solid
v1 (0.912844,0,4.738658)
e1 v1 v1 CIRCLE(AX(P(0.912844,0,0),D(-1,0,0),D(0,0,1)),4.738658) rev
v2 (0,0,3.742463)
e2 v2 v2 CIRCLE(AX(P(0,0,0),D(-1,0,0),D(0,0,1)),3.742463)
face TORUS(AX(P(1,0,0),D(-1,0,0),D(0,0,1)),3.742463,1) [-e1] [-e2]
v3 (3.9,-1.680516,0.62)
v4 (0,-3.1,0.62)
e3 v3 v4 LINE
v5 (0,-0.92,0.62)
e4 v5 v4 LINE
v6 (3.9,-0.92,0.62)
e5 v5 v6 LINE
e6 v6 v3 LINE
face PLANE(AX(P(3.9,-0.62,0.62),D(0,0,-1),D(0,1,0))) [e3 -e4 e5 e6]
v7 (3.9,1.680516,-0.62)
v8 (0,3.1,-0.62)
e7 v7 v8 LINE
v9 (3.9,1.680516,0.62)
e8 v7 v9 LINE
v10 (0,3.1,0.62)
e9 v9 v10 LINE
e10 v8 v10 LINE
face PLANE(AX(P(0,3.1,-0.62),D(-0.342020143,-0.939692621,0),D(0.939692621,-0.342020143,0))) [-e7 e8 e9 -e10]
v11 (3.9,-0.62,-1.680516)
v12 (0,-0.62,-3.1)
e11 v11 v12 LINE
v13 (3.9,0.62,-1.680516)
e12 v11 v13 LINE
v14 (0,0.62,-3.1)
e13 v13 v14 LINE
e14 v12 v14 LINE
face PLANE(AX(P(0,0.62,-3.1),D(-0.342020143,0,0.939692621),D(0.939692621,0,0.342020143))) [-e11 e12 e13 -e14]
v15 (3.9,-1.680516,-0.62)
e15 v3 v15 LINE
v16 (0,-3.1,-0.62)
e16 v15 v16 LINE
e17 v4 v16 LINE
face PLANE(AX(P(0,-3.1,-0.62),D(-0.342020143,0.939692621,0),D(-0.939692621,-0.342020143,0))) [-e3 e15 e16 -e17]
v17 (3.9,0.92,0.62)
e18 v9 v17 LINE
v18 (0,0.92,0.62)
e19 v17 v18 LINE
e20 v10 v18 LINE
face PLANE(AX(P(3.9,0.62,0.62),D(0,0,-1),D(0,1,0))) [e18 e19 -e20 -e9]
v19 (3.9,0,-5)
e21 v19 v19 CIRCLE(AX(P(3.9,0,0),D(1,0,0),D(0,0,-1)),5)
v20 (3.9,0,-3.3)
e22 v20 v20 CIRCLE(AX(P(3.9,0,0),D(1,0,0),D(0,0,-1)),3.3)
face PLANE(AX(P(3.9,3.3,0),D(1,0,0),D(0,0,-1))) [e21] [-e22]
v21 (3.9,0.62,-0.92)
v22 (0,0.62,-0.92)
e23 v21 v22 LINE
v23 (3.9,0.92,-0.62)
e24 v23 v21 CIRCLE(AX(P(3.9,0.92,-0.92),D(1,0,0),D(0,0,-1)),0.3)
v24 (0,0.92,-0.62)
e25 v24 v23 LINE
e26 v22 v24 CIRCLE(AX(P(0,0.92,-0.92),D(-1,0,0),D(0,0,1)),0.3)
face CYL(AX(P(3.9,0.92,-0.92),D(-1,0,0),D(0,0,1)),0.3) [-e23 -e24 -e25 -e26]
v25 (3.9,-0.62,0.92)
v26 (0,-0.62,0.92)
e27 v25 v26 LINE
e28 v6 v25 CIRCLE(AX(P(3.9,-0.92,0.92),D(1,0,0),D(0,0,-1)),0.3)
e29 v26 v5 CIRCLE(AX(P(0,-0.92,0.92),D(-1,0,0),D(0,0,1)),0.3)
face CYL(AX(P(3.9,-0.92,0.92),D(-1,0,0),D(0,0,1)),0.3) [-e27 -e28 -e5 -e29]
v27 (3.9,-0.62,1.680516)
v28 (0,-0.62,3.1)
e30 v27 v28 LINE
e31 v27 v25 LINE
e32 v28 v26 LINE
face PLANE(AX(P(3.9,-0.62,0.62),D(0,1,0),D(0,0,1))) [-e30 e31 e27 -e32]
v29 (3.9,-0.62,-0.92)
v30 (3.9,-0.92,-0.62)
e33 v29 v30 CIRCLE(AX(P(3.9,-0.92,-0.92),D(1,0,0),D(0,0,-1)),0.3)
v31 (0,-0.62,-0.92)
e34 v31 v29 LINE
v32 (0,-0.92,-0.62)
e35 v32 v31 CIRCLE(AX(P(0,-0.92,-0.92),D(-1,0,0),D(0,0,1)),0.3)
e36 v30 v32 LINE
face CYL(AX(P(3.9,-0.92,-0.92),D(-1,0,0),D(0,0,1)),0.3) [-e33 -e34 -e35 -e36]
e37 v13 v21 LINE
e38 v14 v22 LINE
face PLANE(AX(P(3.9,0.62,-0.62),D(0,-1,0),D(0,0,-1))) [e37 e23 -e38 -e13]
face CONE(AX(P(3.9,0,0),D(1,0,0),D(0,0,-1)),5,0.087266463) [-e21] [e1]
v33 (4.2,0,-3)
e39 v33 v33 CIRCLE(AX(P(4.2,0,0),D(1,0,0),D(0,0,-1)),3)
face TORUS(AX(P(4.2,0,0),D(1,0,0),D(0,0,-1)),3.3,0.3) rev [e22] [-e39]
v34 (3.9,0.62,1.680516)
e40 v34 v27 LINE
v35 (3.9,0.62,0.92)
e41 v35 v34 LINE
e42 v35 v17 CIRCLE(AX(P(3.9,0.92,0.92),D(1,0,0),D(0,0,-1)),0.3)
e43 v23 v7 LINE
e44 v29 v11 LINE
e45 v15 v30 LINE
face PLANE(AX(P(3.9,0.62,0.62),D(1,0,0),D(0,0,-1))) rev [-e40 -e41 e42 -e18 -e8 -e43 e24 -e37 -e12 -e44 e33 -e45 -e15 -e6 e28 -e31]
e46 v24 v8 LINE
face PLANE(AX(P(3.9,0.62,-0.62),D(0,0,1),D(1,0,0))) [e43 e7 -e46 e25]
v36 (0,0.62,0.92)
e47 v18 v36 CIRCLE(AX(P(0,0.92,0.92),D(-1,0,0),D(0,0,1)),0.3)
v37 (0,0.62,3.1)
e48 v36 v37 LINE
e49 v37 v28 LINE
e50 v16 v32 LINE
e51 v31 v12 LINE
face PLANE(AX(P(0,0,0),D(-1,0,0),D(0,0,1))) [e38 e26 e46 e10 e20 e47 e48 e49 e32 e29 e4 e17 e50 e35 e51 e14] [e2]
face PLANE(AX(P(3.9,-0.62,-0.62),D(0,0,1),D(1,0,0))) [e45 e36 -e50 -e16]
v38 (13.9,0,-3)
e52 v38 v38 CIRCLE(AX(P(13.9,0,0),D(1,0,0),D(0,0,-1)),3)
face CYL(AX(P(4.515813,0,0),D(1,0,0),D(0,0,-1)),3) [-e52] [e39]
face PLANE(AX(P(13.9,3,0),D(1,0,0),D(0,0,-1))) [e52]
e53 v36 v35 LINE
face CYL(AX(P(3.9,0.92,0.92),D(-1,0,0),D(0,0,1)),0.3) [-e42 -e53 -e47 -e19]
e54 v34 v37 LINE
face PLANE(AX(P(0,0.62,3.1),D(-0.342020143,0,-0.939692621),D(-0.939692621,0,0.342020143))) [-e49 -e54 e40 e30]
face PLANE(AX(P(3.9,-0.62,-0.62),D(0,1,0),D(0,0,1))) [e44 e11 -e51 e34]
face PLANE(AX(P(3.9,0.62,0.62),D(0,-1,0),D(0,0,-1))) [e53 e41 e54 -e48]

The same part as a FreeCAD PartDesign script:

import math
import FreeCAD as App
import Part
import Sketcher
from FreeCAD import Vector
Q = App.Units.Quantity


def edges_at(feature, points):
    """Names of the edges that pass closest to the given points."""
    edges = feature.Shape.Edges
    near = lambda p: min(range(len(edges)), key=lambda i: edges[i].distToShape(Part.Vertex(*p))[0])
    return sorted({f"Edge{near(p) + 1}" for p in points})


def faces_at(feature, points):
    """Names of the faces that lie closest to the given points."""
    faces = feature.Shape.Faces
    near = lambda p: min(range(len(faces)), key=lambda i: faces[i].distToShape(Part.Vertex(*p))[0])
    return sorted({f"Face{near(p) + 1}" for p in points})


def add_polygon(sketch, points):
    """Adds a closed chain of lines whose ends are joined by coincident constraints."""
    first, n = sketch.GeometryCount, len(points)
    for a, b in zip(points, points[1:] + points[:1]):
        sketch.addGeometry(Part.LineSegment(App.Vector(*a, 0), App.Vector(*b, 0)), False)
    for i in range(n):
        sketch.addConstraint(Sketcher.Constraint("Coincident", first + i, 2, first + (i + 1) % n, 1))

doc = App.newDocument("Part")
body = doc.addObject("PartDesign::Body", "Body")

# Sketch on XY plane
sketch1 = body.newObject("Sketcher::SketchObject", "Sketch")
sketch1.AttachmentSupport = (doc.getObject("XY_Plane"), [""])
sketch1.MapMode = "FlatFace"
sketch1.addGeometry([
    Part.LineSegment(Vector(13.9, 3, 0), Vector(4.2, 3, 0)),  # 0
    Part.ArcOfCircle(Part.Circle(Vector(4.2, 3.3, 0), Vector(0, 0, 1), 0.3), math.radians(-180), math.radians(-90)),  # 1
    Part.LineSegment(Vector(3.9, 3.3, 0), Vector(3.9, 5, 0)),  # 2
    Part.LineSegment(Vector(3.9, 5, 0), Vector(0, 4.66, 0)),  # 3
    Part.LineSegment(Vector(0, 4.66, 0), Vector(0, 0, 0)),  # 4
    Part.LineSegment(Vector(0, 0, 0), Vector(13.9, 0, 0)),  # 5
    Part.LineSegment(Vector(13.9, 0, 0), Vector(13.9, 3, 0)),  # 6
], False)
sketch1.addConstraint([
    Sketcher.Constraint("Tangent", 0, 2, 1, 2),
    Sketcher.Constraint("Tangent", 1, 1, 2, 1),
    Sketcher.Constraint("Coincident", 2, 2, 3, 1),
    Sketcher.Constraint("Coincident", 3, 2, 4, 1),
    Sketcher.Constraint("Coincident", 4, 2, 5, 1),
    Sketcher.Constraint("Coincident", 5, 2, 6, 1),
    Sketcher.Constraint("Coincident", 6, 2, 0, 1),
    Sketcher.Constraint("Horizontal", 0),
    Sketcher.Constraint("Vertical", 2),
    Sketcher.Constraint("Vertical", 4),
    Sketcher.Constraint("Horizontal", 5),
    Sketcher.Constraint("Vertical", 6),
    Sketcher.Constraint("Coincident", 4, 2, -1, 1),
    Sketcher.Constraint("Radius", 1, 0.3),
    Sketcher.Constraint("DistanceY", 6, 1, 6, 2, 3.0),
    Sketcher.Constraint("Angle", 3, Q("-175 deg")),
    Sketcher.Constraint("DistanceX", 0, 2, 0, 1, 9.7),
    Sketcher.Constraint("DistanceX", 5, 1, 5, 2, 13.9),
    Sketcher.Constraint("DistanceY", 2, 1, 2, 2, 1.7),
])
revolution = body.newObject("PartDesign::Revolution", "Revolution")
revolution.Profile = sketch1
revolution.ReferenceAxis = (sketch1, ["H_Axis"])
revolution.Angle = 360

# Sketch on YZ plane
sketch2 = body.newObject("Sketcher::SketchObject", "Sketch001")
sketch2.AttachmentSupport = (doc.getObject("YZ_Plane"), [""])
sketch2.MapMode = "FlatFace"
add_polygon(sketch2, [(0.6, -0.6), (3.1, -0.6), (3.1, 0.6), (0.6, 0.6), (0.6, 3.1), (-0.6, 3.1), (-0.6, 0.6), (-3.1, 0.6), (-3.1, -0.6), (-0.6, -0.6), (-0.6, -3.1), (0.6, -3.1)])  # lines 0-11
sketch2.addConstraint([
    Sketcher.Constraint("Horizontal", 0),
    Sketcher.Constraint("Vertical", 1),
    Sketcher.Constraint("Horizontal", 2),
    Sketcher.Constraint("Vertical", 3),
    Sketcher.Constraint("Horizontal", 4),
    Sketcher.Constraint("Vertical", 5),
    Sketcher.Constraint("Horizontal", 6),
    Sketcher.Constraint("Vertical", 7),
    Sketcher.Constraint("Horizontal", 8),
    Sketcher.Constraint("Vertical", 9),
    Sketcher.Constraint("Horizontal", 10),
    Sketcher.Constraint("Vertical", 11),
    Sketcher.Constraint("Symmetric", 0, 2, 6, 2, -1, 1),
    Sketcher.Constraint("Symmetric", 2, 2, 8, 2, -1, 1),
    Sketcher.Constraint("Symmetric", 4, 2, 10, 2, -1, 1),
    Sketcher.Constraint("Symmetric", 2, 2, 5, 2, -2),
    Sketcher.Constraint("Equal", 10, 1),
    Sketcher.Constraint("Equal", 8, 3),
    Sketcher.Constraint("DistanceX", 0, 1, 0, 2, 2.48),
    Sketcher.Constraint("DistanceX", 4, 2, 4, 1, 1.24),
])
pocket1 = body.newObject("PartDesign::Pocket", "Pocket")
pocket1.Profile = sketch2
pocket1.Length = 3.9
pocket1.Reversed = True
doc.recompute()

fillet = body.newObject("PartDesign::Fillet", "Fillet")
fillet.Base = (pocket1, edges_at(pocket1, [
    (1.95, 0.62, 0.62),
    (1.95, -0.62, 0.62),
    (1.95, -0.62, -0.62),
    (1.95, 0.62, -0.62),
]))
fillet.Radius = 0.3
doc.recompute()

fillet2 = body.newObject("PartDesign::Fillet", "Fillet001")
fillet2.Base = (fillet, edges_at(fillet, [(0, -4.659, 0)]))
fillet2.Radius = 1
doc.recompute()

draft = body.newObject("PartDesign::Draft", "Draft")
draft.Base = (fillet2, faces_at(fillet2, [
    (1.95, 0, 3.1),
    (1.95, -3.1, 0),
    (1.95, 0, -3.1),
    (1.95, 3.1, 0),
]))
draft.NeutralPlane = (doc.getObject("YZ_Plane"), [""])
draft.Angle = 20
draft.Reversed = True

doc.recompute()
